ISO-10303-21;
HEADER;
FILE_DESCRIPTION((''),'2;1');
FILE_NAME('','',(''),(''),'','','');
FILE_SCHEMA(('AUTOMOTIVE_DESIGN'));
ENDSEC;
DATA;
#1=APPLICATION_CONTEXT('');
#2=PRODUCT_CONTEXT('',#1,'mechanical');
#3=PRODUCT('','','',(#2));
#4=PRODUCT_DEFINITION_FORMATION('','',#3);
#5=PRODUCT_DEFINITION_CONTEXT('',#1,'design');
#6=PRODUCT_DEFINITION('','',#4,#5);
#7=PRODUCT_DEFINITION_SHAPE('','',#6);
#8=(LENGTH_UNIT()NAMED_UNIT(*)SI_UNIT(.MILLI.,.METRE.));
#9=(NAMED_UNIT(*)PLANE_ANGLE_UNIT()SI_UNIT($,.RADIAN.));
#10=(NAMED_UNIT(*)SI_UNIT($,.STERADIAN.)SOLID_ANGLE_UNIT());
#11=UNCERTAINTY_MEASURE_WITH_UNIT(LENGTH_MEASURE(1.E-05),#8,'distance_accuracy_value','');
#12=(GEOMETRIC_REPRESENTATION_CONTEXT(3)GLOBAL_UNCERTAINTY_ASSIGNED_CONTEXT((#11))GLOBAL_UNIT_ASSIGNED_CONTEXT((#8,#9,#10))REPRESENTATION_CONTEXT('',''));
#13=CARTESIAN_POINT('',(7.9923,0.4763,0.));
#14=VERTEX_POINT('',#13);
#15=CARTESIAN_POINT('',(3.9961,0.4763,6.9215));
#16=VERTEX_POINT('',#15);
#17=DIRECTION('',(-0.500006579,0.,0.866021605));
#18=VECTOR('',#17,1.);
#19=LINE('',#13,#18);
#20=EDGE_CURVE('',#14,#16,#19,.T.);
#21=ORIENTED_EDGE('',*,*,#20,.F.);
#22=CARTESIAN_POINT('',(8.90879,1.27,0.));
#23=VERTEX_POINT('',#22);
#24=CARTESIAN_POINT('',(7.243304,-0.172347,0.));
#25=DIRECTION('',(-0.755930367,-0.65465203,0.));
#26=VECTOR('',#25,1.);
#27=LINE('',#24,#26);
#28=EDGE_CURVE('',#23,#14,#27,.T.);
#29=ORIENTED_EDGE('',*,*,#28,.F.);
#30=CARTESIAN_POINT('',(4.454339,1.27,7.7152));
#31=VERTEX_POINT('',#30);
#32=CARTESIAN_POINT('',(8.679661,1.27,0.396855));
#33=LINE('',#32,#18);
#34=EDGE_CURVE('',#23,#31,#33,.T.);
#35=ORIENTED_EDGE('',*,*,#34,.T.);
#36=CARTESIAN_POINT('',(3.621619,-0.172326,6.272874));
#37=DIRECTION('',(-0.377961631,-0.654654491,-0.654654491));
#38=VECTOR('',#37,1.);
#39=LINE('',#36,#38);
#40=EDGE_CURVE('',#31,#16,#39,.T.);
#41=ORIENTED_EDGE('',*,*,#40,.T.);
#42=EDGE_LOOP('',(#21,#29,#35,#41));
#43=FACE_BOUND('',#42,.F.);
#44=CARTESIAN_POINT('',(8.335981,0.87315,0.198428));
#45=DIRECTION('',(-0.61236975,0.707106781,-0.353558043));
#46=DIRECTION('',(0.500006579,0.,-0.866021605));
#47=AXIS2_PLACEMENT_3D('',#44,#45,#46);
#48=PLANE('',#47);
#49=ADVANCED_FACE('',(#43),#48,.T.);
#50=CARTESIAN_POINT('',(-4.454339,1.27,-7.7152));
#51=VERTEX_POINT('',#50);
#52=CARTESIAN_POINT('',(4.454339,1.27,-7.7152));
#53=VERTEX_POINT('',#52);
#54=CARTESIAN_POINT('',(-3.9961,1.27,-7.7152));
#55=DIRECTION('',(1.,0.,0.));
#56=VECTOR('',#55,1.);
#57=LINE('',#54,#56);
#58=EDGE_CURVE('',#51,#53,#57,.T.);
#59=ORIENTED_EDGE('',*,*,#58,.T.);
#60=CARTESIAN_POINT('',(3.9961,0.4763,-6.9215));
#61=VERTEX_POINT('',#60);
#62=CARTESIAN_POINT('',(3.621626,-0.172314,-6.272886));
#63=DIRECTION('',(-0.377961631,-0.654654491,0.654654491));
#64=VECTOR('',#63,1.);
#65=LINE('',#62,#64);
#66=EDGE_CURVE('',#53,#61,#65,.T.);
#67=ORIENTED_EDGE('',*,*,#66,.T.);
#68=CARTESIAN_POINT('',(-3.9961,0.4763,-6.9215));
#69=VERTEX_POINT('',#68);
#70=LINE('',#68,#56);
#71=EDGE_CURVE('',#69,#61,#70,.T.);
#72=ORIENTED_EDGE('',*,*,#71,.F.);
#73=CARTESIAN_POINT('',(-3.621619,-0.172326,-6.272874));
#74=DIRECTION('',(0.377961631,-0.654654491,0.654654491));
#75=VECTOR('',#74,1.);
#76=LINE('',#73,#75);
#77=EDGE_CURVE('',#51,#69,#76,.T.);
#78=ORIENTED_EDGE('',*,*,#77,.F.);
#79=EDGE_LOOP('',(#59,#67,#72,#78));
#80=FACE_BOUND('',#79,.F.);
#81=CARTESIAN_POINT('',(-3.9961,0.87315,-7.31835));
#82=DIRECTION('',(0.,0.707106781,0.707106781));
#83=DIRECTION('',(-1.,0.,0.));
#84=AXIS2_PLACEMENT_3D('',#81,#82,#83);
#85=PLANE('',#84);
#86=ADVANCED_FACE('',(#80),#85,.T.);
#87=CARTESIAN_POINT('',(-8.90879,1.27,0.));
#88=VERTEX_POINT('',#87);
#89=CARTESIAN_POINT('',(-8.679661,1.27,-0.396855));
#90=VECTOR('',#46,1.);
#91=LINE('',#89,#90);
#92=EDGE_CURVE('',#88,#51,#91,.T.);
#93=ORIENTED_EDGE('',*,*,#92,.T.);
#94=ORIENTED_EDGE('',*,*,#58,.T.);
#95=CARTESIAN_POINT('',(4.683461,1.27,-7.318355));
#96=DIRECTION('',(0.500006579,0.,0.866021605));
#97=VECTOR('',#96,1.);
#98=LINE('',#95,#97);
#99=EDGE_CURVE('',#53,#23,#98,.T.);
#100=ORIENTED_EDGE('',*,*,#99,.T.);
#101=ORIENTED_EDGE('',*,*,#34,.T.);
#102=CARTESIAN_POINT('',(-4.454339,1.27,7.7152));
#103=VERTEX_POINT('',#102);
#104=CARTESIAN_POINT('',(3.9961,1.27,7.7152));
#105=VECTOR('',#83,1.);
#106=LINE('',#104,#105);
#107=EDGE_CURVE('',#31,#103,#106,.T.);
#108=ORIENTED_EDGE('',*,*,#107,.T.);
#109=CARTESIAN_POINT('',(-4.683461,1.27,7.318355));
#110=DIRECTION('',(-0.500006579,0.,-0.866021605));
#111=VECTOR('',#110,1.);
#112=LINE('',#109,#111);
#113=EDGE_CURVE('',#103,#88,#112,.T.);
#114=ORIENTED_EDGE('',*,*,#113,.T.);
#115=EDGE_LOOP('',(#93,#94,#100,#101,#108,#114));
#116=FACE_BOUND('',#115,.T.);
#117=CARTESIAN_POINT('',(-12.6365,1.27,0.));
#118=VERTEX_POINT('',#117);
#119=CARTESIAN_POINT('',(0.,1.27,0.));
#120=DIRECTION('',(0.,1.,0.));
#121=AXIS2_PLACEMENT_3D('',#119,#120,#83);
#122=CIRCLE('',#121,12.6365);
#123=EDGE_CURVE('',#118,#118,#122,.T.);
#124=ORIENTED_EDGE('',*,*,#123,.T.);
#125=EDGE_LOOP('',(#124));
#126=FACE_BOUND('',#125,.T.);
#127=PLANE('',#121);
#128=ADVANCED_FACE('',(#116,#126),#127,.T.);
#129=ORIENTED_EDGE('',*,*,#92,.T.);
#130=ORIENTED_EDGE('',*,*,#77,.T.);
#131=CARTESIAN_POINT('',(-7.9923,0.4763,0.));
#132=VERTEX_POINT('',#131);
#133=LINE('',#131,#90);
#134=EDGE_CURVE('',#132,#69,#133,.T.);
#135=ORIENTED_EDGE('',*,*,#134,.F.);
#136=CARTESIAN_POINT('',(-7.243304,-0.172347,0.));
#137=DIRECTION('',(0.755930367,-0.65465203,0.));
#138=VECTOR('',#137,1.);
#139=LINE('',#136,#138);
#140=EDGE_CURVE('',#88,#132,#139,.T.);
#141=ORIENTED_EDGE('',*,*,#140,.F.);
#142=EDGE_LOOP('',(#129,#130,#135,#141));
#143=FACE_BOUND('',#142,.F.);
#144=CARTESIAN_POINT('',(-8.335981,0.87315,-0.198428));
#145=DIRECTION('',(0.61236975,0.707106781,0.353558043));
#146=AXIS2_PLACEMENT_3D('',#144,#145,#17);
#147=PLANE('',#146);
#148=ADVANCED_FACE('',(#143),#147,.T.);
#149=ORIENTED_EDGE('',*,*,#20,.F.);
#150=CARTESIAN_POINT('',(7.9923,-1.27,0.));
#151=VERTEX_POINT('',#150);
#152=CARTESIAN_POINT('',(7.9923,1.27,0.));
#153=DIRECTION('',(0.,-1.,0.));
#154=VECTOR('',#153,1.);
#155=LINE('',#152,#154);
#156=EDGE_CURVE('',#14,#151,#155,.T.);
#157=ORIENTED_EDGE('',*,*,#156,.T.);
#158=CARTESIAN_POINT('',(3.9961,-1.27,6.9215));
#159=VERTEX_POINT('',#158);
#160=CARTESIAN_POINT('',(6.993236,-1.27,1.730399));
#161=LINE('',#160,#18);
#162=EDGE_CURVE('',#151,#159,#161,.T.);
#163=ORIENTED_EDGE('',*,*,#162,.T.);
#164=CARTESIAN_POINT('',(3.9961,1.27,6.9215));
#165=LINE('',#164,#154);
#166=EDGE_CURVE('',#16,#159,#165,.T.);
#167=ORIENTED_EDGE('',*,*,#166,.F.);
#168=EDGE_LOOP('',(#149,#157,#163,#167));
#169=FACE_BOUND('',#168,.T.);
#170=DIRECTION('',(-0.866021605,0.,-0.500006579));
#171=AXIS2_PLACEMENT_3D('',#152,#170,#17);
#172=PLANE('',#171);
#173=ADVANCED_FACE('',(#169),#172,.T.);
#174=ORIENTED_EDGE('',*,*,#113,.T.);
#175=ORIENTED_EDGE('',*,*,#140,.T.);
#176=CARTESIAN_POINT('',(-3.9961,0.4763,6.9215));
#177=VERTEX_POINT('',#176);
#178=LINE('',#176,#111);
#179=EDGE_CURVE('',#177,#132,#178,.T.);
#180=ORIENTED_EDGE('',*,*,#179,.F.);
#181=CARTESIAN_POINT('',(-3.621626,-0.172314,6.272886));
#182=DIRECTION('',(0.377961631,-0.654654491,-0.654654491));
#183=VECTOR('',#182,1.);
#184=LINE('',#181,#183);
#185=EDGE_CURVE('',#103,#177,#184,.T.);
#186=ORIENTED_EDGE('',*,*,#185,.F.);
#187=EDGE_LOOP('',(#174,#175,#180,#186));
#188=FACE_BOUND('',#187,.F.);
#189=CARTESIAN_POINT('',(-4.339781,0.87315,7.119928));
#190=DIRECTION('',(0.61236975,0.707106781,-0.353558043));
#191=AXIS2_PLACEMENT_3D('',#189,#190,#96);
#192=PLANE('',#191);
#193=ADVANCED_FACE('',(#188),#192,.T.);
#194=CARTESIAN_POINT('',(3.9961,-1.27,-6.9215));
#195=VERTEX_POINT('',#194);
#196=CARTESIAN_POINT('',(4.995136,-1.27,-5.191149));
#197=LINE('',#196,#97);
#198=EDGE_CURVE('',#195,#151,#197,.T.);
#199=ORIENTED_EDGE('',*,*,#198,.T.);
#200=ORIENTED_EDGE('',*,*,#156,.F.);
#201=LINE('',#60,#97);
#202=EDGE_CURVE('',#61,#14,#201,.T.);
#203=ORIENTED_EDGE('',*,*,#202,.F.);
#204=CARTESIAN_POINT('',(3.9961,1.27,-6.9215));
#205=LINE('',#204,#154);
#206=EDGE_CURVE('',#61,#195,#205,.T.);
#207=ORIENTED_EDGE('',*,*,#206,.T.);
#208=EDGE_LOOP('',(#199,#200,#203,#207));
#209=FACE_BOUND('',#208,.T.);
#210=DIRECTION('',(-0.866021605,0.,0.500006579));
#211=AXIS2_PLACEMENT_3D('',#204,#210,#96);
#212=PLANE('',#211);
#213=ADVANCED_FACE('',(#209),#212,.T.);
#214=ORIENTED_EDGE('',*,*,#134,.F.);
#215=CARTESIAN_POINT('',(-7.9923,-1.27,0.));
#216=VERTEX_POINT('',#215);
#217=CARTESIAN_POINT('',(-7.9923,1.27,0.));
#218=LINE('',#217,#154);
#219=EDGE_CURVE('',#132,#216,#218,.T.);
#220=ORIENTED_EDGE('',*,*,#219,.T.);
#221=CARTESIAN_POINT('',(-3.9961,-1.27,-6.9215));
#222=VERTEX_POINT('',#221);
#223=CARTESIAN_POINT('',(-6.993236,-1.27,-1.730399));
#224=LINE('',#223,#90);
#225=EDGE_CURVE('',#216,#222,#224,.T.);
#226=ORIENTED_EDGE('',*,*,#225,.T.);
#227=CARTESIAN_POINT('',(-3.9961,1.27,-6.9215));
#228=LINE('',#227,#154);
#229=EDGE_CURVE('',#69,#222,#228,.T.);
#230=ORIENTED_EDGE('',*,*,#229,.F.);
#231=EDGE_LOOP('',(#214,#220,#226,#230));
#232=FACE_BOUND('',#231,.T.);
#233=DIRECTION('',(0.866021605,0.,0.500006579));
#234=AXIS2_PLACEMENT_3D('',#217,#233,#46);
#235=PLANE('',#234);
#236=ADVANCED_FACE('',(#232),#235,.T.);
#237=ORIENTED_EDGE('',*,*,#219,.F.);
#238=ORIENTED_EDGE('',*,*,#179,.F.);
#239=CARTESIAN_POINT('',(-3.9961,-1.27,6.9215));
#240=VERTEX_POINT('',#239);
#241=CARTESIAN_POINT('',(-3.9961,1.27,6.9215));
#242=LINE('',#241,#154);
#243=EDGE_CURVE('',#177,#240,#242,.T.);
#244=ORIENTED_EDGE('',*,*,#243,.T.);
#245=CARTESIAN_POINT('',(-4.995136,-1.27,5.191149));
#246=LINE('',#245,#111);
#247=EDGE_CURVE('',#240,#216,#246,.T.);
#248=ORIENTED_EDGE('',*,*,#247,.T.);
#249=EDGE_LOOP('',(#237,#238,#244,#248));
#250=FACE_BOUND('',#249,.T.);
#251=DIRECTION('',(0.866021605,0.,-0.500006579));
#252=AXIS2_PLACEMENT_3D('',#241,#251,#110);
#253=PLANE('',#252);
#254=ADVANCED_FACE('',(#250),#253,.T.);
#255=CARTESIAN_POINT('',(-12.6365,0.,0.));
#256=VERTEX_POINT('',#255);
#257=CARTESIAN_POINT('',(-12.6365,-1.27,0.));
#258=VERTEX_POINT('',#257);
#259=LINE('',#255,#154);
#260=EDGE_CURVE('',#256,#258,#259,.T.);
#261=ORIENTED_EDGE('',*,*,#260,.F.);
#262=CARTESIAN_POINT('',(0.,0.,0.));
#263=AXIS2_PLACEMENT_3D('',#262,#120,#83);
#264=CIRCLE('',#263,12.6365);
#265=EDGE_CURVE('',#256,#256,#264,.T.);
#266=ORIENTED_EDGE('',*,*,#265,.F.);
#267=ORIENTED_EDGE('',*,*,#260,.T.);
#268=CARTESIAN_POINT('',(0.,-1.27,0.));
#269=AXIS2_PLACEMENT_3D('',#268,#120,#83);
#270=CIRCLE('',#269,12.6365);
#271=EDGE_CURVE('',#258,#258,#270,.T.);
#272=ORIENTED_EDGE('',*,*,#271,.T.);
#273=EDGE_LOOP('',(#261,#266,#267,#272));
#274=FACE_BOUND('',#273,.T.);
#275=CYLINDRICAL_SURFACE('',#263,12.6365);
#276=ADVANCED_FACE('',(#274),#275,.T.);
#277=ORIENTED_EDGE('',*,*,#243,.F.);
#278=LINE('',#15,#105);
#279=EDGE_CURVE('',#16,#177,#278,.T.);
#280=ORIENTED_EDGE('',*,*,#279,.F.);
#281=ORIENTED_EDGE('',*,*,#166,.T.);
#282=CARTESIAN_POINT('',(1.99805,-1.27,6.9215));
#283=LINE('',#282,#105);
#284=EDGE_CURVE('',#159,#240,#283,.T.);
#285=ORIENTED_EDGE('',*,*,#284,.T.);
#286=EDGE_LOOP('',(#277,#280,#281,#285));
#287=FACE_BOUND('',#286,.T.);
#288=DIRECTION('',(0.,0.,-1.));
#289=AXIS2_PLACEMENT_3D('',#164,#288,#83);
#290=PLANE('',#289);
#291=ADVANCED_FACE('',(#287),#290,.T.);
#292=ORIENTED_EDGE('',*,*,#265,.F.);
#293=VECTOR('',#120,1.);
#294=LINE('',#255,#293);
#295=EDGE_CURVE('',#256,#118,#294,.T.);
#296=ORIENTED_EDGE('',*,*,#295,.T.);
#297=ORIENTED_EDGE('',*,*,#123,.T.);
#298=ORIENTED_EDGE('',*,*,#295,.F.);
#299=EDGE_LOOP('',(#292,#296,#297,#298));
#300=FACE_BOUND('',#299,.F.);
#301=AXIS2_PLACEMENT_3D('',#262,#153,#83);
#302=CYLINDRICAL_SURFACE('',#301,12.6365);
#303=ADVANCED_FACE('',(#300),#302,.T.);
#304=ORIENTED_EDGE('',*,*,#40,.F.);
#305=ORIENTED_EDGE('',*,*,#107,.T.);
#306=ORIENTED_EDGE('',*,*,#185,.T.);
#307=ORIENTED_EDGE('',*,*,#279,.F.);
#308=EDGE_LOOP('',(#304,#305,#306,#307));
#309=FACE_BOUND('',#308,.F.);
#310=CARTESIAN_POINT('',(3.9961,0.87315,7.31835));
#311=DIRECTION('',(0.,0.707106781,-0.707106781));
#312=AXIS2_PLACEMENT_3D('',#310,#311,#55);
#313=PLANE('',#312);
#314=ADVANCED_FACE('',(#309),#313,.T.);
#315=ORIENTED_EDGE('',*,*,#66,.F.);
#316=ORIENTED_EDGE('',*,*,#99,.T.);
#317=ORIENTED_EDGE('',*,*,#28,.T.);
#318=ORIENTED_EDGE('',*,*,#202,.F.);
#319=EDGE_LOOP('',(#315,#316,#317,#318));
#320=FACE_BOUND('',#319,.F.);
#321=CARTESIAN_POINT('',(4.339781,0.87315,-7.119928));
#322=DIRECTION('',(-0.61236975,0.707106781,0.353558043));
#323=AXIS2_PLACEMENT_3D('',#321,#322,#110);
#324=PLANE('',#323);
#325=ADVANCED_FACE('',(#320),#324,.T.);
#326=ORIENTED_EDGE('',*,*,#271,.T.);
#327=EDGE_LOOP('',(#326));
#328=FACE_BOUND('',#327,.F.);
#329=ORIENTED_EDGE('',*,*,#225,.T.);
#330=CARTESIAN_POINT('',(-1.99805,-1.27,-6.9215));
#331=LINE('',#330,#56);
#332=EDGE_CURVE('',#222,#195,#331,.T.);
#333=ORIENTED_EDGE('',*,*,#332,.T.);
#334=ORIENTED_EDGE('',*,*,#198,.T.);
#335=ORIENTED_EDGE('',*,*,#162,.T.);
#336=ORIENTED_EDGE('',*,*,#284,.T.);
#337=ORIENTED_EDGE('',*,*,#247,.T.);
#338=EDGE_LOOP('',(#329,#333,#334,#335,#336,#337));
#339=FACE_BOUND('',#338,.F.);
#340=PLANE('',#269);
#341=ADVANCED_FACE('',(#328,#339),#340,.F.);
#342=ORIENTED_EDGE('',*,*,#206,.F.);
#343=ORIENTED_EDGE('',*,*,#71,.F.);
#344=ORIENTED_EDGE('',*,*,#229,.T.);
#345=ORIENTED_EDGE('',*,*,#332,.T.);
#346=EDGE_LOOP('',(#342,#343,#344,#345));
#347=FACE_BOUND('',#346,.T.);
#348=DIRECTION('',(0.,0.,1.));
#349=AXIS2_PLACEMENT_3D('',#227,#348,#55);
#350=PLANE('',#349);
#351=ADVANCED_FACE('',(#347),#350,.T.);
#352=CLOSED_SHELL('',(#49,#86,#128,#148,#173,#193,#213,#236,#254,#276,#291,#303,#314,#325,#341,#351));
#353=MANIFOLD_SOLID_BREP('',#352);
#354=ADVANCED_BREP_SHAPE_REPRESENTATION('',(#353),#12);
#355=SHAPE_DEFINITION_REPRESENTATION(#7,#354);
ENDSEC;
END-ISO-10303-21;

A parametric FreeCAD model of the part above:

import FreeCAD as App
import Part
import Sketcher
Q = App.Units.Quantity


def edges_at(feature, points):
    """Names of the edges that pass closest to the given points."""
    edges = feature.Shape.Edges
    near = lambda p: min(range(len(edges)), key=lambda i: edges[i].distToShape(Part.Vertex(*p))[0])
    return sorted({f"Edge{near(p) + 1}" for p in points})

doc = App.newDocument("Part")
body = doc.addObject("PartDesign::Body", "Body")

# Sketch on XZ plane
sketch1 = body.newObject("Sketcher::SketchObject", "Sketch")
sketch1.AttachmentSupport = (doc.getObject("XZ_Plane"), [""])
sketch1.MapMode = "FlatFace"
sketch1.addGeometry(Part.Circle(App.Vector(0, 0, 0), App.Vector(0, 0, 1), 12.6365), False)
sketch1.addConstraint(Sketcher.Constraint("Coincident", 0, 3, -1, 1))
sketch1.addConstraint(Sketcher.Constraint("Diameter", 0, Q("0.995 in")))
pad1 = body.newObject("PartDesign::Pad", "Pad")
pad1.Profile = sketch1
pad1.Length = Q("0.1 in")
pad1.Midplane = True

# Sketch on XZ plane
sketch2 = body.newObject("Sketcher::SketchObject", "Sketch001")
sketch2.AttachmentSupport = (doc.getObject("XZ_Plane"), [""])
sketch2.MapMode = "FlatFace"
sketch2.AttachmentOffset = App.Placement(App.Vector(0, 0, -0.05 * 25.4), App.Rotation())
sketch2.addGeometry(Part.LineSegment(App.Vector(3.9961, 6.9215, 0), App.Vector(7.9923, 0, 0)), False)
sketch2.addGeometry(Part.LineSegment(App.Vector(7.9923, 0, 0), App.Vector(3.9961, -6.9215, 0)), False)
sketch2.addGeometry(Part.LineSegment(App.Vector(3.9961, -6.9215, 0), App.Vector(-3.9961, -6.9215, 0)), False)
sketch2.addGeometry(Part.LineSegment(App.Vector(-3.9961, -6.9215, 0), App.Vector(-7.9923, 0, 0)), False)
sketch2.addGeometry(Part.LineSegment(App.Vector(-7.9923, 0, 0), App.Vector(-3.9961, 6.9215, 0)), False)
sketch2.addGeometry(Part.LineSegment(App.Vector(-3.9961, 6.9215, 0), App.Vector(3.9961, 6.9215, 0)), False)
sketch2.addConstraint(Sketcher.Constraint("Coincident", 0, 2, 1, 1))
sketch2.addConstraint(Sketcher.Constraint("Coincident", 1, 2, 2, 1))
sketch2.addConstraint(Sketcher.Constraint("Coincident", 2, 2, 3, 1))
sketch2.addConstraint(Sketcher.Constraint("Coincident", 3, 2, 4, 1))
sketch2.addConstraint(Sketcher.Constraint("Coincident", 4, 2, 5, 1))
sketch2.addConstraint(Sketcher.Constraint("Coincident", 5, 2, 0, 1))
sketch2.addConstraint(Sketcher.Constraint("Horizontal", 2))
sketch2.addConstraint(Sketcher.Constraint("Horizontal", 5))
sketch2.addConstraint(Sketcher.Constraint("Symmetric", 0, 2, 3, 2, -1, 1))
sketch2.addConstraint(Sketcher.Constraint("Symmetric", 1, 2, 4, 2, -1, 1))
sketch2.addConstraint(Sketcher.Constraint("PointOnObject", 0, 2, -1))
sketch2.addConstraint(Sketcher.Constraint("Parallel", 0, 3))
sketch2.addConstraint(Sketcher.Constraint("Vertical", 2, 2, 4, 2))
sketch2.addConstraint(Sketcher.Constraint("Angle", 0, Q("-59.9996 deg")))
sketch2.addConstraint(Sketcher.Constraint("DistanceY", 2, 2, 4, 2, Q("0.545 in")))
sketch2.addConstraint(Sketcher.Constraint("DistanceX", 2, 2, 2, 1, 7.9922))
pocket1 = body.newObject("PartDesign::Pocket", "Pocket")
pocket1.Profile = sketch2
pocket1.Type = "ThroughAll"
pocket1.Reversed = True
doc.recompute()

chamfer = body.newObject("PartDesign::Chamfer", "Chamfer")
chamfer.Base = (pocket1, edges_at(pocket1, [
    (-5.994, 1.27, -3.461),
    (-5.994, 1.27, 3.461),
    (0, 1.27, 6.921),
    (5.994, 1.27, 3.461),
    (5.994, 1.27, -3.461),
    (0, 1.27, -6.921),
]))
chamfer.Size = Q("0.031248 in")

doc.recompute()
